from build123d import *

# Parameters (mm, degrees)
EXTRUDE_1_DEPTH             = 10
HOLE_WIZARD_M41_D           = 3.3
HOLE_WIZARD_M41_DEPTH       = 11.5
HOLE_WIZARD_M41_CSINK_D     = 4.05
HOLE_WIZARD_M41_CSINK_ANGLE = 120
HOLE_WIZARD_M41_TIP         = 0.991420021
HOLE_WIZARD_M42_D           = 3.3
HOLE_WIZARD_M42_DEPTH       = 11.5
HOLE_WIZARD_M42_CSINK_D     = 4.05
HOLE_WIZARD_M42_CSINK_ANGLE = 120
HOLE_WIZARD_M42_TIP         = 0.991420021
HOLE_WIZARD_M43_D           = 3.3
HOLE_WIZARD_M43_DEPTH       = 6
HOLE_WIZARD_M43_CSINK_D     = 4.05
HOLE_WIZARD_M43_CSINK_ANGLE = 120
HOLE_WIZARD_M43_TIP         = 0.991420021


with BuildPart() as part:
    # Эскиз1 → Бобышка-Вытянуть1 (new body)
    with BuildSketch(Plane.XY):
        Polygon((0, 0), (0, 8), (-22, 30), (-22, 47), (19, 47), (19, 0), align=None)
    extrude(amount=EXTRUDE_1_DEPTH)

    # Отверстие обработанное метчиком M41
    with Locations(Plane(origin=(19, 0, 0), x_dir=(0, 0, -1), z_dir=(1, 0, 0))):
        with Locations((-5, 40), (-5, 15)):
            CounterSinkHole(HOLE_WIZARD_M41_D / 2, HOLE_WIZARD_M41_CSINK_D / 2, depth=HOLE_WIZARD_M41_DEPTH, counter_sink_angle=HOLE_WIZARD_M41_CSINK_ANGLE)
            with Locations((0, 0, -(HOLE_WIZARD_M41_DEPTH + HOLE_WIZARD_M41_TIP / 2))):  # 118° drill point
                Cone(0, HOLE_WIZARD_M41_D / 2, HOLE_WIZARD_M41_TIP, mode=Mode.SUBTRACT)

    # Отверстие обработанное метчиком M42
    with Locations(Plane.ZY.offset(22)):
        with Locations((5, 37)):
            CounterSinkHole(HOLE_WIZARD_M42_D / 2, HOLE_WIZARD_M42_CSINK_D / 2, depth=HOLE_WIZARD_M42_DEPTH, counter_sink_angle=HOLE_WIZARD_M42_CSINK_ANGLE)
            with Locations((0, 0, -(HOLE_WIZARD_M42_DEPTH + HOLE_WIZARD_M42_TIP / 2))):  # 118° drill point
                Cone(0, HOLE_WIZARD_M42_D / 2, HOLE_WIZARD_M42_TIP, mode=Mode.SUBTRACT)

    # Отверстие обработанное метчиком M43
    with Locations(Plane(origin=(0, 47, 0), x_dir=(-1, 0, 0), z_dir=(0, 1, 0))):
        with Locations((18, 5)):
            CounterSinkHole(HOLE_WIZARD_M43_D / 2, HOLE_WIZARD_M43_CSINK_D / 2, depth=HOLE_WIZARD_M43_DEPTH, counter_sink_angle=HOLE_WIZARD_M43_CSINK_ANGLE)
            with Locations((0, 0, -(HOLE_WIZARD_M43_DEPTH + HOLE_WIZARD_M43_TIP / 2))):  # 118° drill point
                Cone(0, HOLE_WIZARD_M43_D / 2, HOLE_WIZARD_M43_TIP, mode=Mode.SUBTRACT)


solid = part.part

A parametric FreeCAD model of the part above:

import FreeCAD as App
import Part
import Sketcher
from FreeCAD import Vector
Q = App.Units.Quantity


def add_polygon(sketch, points):
    """Adds a closed chain of lines whose ends are joined by coincident constraints."""
    first, n = sketch.GeometryCount, len(points)
    for a, b in zip(points, points[1:] + points[:1]):
        sketch.addGeometry(Part.LineSegment(App.Vector(*a, 0), App.Vector(*b, 0)), False)
    for i in range(n):
        sketch.addConstraint(Sketcher.Constraint("Coincident", first + i, 2, first + (i + 1) % n, 1))

doc = App.newDocument("Part")
body = doc.addObject("PartDesign::Body", "Body")

# Sketch on XY plane
sketch1 = body.newObject("Sketcher::SketchObject", "Sketch")
sketch1.AttachmentSupport = (doc.getObject("XY_Plane"), [""])
sketch1.MapMode = "FlatFace"
add_polygon(sketch1, [(0, 8), (0, 0), (19, 0), (19, 47), (-22, 47), (-22, 30)])  # lines 0-5
sketch1.addConstraint([
    Sketcher.Constraint("Vertical", 0),
    Sketcher.Constraint("Horizontal", 1),
    Sketcher.Constraint("Vertical", 2),
    Sketcher.Constraint("Horizontal", 3),
    Sketcher.Constraint("Vertical", 4),
    Sketcher.Constraint("Coincident", 0, 2, -1, 1),
    Sketcher.Constraint("DistanceX", 1, 1, 1, 2, Q("19 mm")),
    Sketcher.Constraint("DistanceX", 3, 2, 3, 1, Q("41 mm")),
    Sketcher.Constraint("DistanceY", 0, 2, 0, 1, Q("8 mm")),
    Sketcher.Constraint("DistanceY", 2, 1, 2, 2, Q("47 mm")),
    Sketcher.Constraint("DistanceY", 4, 2, 4, 1, Q("17 mm")),
])
pad1 = body.newObject("PartDesign::Pad", "Pad")
pad1.Profile = sketch1
pad1.Length = 10

# Sketch on YZ plane
sketch2 = body.newObject("Sketcher::SketchObject", "Sketch001")
sketch2.AttachmentSupport = (doc.getObject("YZ_Plane"), [""])
sketch2.MapMode = "FlatFace"
sketch2.AttachmentOffset = App.Placement(Vector(0, 0, 19), App.Rotation())
sketch2.addGeometry([
    Part.Circle(Vector(40, 5, 0), Vector(0, 0, 1), 1.6),
    Part.Circle(Vector(15, 5, 0), Vector(0, 0, 1), 1.6),
], False)
sketch2.addConstraint([
    Sketcher.Constraint("Equal", 0, 1),
    Sketcher.Constraint("Horizontal", 0, 3, 1, 3),
    Sketcher.Constraint("Diameter", 0, Q("3.3 mm")),
    Sketcher.Constraint("DistanceX", -1, 1, 0, 3, Q("40 mm")),
    Sketcher.Constraint("DistanceY", -1, 1, 0, 3, Q("5 mm")),
    Sketcher.Constraint("DistanceX", -1, 1, 1, 3, Q("15 mm")),
])
doc.recompute()
hole = body.newObject("PartDesign::Hole", "Hole")
hole.Profile = sketch2
hole.ThreadType = "None"
hole.Diameter = 3.3
hole.DepthType = "Dimension"
hole.Depth = 11.5
hole.DrillPoint = "Angled"
hole.DrillPointAngle = 118
hole.HoleCutType = "Countersink"
hole.HoleCutDiameter = 4.05
hole.HoleCutCountersinkAngle = 120

# Sketch on YZ plane
sketch3 = body.newObject("Sketcher::SketchObject", "Sketch002")
sketch3.AttachmentSupport = (doc.getObject("YZ_Plane"), [""])
sketch3.MapMode = "FlatFace"
sketch3.AttachmentOffset = App.Placement(Vector(0, 0, -22), App.Rotation())
sketch3.addGeometry(Part.Circle(Vector(37, 5, 0), Vector(0, 0, 1), 1.6), False)
sketch3.addConstraint([
    Sketcher.Constraint("Diameter", 0, Q("3.3 mm")),
    Sketcher.Constraint("DistanceX", -1, 1, 0, 3, Q("37 mm")),
    Sketcher.Constraint("DistanceY", -1, 1, 0, 3, Q("5 mm")),
])
doc.recompute()
hole2 = body.newObject("PartDesign::Hole", "Hole001")
hole2.Profile = sketch3
hole2.ThreadType = "None"
hole2.Diameter = 3.3
hole2.DepthType = "Dimension"
hole2.Depth = 11.5
hole2.DrillPoint = "Angled"
hole2.DrillPointAngle = 118
hole2.HoleCutType = "Countersink"
hole2.HoleCutDiameter = 4.05
hole2.HoleCutCountersinkAngle = 120
hole2.Reversed = True

# Sketch on XZ plane
sketch4 = body.newObject("Sketcher::SketchObject", "Sketch003")
sketch4.AttachmentSupport = (doc.getObject("XZ_Plane"), [""])
sketch4.MapMode = "FlatFace"
sketch4.AttachmentOffset = App.Placement(Vector(0, 0, -47), App.Rotation())
sketch4.addGeometry(Part.Circle(Vector(-18, 5, 0), Vector(0, 0, 1), 1.6), False)
sketch4.addConstraint([
    Sketcher.Constraint("Diameter", 0, Q("3.3 mm")),
    Sketcher.Constraint("DistanceX", 0, 3, -1, 1, Q("18 mm")),
    Sketcher.Constraint("DistanceY", -1, 1, 0, 3, Q("5 mm")),
])
doc.recompute()
hole3 = body.newObject("PartDesign::Hole", "Hole002")
hole3.Profile = sketch4
hole3.ThreadType = "None"
hole3.Diameter = 3.3
hole3.DepthType = "Dimension"
hole3.Depth = 6
hole3.DrillPoint = "Angled"
hole3.DrillPointAngle = 118
hole3.HoleCutType = "Countersink"
hole3.HoleCutDiameter = 4.05
hole3.HoleCutCountersinkAngle = 120
hole3.Reversed = True

doc.recompute()
